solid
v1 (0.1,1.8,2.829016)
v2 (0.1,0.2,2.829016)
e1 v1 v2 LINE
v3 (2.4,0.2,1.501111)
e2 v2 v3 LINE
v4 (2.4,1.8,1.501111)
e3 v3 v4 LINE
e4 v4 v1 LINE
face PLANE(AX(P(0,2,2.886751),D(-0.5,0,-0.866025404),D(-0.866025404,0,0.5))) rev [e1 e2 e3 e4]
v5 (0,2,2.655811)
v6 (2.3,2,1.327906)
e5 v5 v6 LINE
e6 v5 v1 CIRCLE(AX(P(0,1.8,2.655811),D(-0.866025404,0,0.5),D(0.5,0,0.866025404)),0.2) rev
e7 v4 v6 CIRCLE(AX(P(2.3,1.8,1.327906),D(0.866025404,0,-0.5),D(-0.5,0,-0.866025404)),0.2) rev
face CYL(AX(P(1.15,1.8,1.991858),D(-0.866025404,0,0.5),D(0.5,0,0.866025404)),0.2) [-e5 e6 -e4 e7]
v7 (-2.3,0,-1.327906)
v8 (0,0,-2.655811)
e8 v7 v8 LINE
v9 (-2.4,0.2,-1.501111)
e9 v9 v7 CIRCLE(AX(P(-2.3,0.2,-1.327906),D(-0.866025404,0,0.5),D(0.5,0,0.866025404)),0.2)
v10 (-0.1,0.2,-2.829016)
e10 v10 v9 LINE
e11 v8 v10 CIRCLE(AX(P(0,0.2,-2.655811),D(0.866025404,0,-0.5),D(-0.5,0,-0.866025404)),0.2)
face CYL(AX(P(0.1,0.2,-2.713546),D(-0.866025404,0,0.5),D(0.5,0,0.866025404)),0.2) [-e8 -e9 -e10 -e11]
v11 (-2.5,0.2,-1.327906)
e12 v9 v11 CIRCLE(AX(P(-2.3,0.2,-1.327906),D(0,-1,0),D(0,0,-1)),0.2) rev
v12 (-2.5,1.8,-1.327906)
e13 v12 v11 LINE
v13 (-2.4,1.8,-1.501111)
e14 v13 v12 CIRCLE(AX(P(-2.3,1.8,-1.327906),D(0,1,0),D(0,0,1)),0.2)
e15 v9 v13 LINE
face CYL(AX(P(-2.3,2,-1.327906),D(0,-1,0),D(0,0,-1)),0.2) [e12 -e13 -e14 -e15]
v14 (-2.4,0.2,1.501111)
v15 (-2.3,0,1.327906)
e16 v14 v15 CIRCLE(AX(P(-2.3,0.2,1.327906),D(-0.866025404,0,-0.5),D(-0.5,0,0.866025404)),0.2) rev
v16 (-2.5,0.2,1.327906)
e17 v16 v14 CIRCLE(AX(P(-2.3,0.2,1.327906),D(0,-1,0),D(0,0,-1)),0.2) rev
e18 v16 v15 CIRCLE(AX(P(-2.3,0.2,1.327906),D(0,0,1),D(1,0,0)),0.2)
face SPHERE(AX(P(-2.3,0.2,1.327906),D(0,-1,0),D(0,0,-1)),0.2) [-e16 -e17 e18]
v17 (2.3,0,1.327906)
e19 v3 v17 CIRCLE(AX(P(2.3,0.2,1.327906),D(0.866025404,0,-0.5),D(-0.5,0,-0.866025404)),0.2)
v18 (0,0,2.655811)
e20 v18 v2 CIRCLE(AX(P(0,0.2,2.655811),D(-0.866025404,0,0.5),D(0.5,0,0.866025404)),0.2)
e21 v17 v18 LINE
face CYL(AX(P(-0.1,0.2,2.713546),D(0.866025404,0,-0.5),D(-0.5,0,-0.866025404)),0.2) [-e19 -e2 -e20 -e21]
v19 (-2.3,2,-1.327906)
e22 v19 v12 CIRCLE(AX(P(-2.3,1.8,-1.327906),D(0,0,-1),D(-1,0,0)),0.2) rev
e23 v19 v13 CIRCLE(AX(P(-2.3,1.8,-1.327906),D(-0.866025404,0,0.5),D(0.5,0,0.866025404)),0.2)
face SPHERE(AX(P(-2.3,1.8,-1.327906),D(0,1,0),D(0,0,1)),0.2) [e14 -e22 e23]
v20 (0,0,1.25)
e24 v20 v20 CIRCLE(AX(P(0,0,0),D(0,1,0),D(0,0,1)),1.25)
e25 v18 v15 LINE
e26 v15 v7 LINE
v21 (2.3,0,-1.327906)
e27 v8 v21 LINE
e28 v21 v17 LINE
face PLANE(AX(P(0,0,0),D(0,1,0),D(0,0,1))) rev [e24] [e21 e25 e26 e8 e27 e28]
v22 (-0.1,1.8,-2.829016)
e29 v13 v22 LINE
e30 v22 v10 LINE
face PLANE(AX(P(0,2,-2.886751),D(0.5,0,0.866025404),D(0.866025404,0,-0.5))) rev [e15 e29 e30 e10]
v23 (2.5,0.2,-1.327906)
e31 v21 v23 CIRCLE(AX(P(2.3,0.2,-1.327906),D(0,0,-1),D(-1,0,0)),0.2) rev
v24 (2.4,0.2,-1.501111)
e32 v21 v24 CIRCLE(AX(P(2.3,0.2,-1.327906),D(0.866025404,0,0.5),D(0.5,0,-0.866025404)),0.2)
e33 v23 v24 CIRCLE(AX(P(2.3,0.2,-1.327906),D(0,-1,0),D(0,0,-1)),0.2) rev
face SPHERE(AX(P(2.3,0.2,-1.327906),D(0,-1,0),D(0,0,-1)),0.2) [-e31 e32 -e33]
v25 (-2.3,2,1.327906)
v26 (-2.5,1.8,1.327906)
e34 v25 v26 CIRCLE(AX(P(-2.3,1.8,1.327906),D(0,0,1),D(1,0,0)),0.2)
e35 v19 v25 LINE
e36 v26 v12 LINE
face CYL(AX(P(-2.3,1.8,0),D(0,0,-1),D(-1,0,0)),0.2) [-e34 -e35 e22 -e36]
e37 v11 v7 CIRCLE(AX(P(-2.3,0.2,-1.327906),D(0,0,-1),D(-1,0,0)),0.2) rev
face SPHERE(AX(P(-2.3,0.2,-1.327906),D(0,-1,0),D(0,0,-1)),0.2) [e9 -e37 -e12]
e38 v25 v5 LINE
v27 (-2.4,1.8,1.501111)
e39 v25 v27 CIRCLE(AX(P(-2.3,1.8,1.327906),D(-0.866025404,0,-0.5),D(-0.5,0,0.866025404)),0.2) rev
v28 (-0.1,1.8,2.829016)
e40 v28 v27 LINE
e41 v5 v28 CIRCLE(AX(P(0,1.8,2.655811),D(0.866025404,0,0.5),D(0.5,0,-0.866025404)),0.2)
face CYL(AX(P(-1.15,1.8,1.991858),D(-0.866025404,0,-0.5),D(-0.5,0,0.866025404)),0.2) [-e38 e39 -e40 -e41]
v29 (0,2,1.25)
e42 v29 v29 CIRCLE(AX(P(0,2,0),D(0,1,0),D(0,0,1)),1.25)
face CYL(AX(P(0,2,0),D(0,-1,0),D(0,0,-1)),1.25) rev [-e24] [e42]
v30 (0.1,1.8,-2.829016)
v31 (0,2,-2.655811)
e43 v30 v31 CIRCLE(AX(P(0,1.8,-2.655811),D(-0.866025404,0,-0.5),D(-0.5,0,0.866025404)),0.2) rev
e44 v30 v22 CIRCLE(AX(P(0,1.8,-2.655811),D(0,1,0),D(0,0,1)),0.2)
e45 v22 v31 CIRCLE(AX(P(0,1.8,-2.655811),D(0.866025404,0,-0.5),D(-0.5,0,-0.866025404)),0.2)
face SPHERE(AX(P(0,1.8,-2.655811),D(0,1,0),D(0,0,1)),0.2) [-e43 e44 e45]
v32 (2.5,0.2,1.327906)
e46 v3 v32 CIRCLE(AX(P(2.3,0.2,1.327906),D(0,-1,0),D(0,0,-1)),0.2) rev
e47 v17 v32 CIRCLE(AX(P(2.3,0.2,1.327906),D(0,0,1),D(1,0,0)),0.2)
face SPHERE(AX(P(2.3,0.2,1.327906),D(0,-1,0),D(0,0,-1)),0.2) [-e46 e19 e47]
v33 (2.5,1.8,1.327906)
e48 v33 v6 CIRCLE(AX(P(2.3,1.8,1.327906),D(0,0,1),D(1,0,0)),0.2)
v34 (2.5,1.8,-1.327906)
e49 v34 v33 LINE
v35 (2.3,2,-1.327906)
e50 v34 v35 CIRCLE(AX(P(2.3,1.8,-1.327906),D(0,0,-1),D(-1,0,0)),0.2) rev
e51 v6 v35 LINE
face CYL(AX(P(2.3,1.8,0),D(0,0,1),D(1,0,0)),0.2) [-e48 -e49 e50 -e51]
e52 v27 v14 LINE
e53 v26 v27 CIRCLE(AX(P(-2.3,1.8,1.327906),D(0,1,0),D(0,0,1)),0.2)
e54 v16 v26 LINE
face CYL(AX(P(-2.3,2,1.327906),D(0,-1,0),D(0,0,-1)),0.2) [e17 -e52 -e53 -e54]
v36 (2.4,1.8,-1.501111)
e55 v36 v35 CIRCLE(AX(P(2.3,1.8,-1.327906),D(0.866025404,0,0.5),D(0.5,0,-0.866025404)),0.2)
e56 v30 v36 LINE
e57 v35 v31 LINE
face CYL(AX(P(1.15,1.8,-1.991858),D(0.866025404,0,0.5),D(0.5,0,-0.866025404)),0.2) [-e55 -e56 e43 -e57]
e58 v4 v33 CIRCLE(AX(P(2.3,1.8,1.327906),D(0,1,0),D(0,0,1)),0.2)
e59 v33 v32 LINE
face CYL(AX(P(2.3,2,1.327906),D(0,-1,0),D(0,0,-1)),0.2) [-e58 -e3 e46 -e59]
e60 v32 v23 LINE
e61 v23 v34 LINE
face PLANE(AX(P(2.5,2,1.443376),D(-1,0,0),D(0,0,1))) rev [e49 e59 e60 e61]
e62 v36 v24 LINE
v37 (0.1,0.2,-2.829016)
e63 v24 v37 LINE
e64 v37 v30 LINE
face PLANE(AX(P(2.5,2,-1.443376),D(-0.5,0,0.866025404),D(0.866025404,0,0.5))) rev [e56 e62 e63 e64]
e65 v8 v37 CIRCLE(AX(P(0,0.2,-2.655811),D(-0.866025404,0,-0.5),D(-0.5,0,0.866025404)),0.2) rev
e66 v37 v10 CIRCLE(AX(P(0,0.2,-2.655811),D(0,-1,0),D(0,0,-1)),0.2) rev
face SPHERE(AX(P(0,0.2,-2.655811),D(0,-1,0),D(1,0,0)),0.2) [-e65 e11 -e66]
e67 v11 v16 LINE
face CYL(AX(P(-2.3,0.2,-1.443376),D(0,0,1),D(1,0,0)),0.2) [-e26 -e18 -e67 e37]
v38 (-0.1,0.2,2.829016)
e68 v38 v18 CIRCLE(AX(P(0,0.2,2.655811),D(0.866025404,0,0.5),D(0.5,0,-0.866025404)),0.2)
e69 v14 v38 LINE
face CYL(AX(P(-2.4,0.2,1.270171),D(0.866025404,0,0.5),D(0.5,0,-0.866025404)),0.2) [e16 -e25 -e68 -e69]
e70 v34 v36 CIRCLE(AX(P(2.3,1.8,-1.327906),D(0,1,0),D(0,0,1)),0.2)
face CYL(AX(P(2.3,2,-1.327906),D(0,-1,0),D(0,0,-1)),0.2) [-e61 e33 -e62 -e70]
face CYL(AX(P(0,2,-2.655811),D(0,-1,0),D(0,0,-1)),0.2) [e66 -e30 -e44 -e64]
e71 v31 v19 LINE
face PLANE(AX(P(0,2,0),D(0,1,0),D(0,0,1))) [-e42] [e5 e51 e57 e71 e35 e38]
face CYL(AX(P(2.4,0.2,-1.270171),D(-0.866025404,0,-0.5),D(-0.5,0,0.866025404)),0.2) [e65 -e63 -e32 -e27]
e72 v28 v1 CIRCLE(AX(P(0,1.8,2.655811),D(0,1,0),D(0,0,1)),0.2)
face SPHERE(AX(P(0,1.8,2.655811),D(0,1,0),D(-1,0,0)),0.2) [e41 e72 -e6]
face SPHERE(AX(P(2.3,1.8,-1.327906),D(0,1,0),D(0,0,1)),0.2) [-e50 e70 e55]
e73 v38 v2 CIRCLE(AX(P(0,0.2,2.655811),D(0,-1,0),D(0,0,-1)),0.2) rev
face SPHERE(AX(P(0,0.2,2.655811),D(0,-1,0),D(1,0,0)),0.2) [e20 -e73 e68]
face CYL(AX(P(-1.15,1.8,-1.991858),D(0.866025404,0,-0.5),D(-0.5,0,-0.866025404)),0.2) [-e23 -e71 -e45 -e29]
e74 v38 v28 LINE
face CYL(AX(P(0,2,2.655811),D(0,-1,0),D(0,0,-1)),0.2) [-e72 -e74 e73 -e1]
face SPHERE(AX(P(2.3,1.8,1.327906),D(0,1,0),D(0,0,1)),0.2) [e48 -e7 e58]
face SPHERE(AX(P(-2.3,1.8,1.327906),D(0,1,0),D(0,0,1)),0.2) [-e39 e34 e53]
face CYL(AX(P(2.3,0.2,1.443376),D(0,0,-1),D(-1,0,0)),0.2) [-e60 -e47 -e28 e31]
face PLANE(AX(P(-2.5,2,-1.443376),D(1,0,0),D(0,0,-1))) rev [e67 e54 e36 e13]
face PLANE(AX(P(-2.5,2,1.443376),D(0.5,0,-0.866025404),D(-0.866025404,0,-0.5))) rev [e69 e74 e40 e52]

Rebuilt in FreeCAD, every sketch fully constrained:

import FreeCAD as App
import Part
import Sketcher
Q = App.Units.Quantity


def edges_at(feature, points):
    """Names of the edges that pass closest to the given points."""
    edges = feature.Shape.Edges
    near = lambda p: min(range(len(edges)), key=lambda i: edges[i].distToShape(Part.Vertex(*p))[0])
    return sorted({f"Edge{near(p) + 1}" for p in points})

doc = App.newDocument("Part")
body = doc.addObject("PartDesign::Body", "Body")

# Sketch on XZ plane
sketch1 = body.newObject("Sketcher::SketchObject", "Sketch")
sketch1.AttachmentSupport = (doc.getObject("XZ_Plane"), [""])
sketch1.MapMode = "FlatFace"
sketch1.addGeometry([
    Part.LineSegment(App.Vector(0, 2.9, 0), App.Vector(2.5, 1.4, 0)),  # 0
    Part.LineSegment(App.Vector(2.5, 1.4, 0), App.Vector(2.5, -1.4, 0)),  # 1
    Part.LineSegment(App.Vector(2.5, -1.4, 0), App.Vector(0, -2.9, 0)),  # 2
    Part.LineSegment(App.Vector(0, -2.9, 0), App.Vector(-2.5, -1.4, 0)),  # 3
    Part.LineSegment(App.Vector(-2.5, -1.4, 0), App.Vector(-2.5, 1.4, 0)),  # 4
    Part.LineSegment(App.Vector(-2.5, 1.4, 0), App.Vector(0, 2.9, 0)),  # 5
    Part.Circle(App.Vector(0, 0, 0), App.Vector(0, 0, 1), 1.2),  # 6
], False)
sketch1.addConstraint([
    Sketcher.Constraint("Coincident", 0, 2, 1, 1),
    Sketcher.Constraint("Coincident", 1, 2, 2, 1),
    Sketcher.Constraint("Coincident", 2, 2, 3, 1),
    Sketcher.Constraint("Coincident", 3, 2, 4, 1),
    Sketcher.Constraint("Coincident", 4, 2, 5, 1),
    Sketcher.Constraint("Coincident", 5, 2, 0, 1),
    Sketcher.Constraint("Vertical", 1),
    Sketcher.Constraint("Vertical", 4),
    Sketcher.Constraint("Coincident", 6, 3, -1, 1),
    Sketcher.Constraint("Symmetric", 0, 2, 3, 2, -1, 1),
    Sketcher.Constraint("Symmetric", 2, 2, 5, 2, -1, 1),
    Sketcher.Constraint("PointOnObject", 2, 2, -2),
    Sketcher.Constraint("Parallel", 2, 5),
    Sketcher.Constraint("Horizontal", 1, 2, 3, 2),
    Sketcher.Constraint("Diameter", 6, 2.5),
    Sketcher.Constraint("Angle", 0, Q("-30 deg")),
    Sketcher.Constraint("DistanceX", 3, 2, 1, 2, 5.0),
    Sketcher.Constraint("DistanceY", 1, 2, 1, 1, 2.886751),
])
pad1 = body.newObject("PartDesign::Pad", "Pad")
pad1.Profile = sketch1
pad1.Length = 2
pad1.Reversed = True
doc.recompute()

fillet = body.newObject("PartDesign::Fillet", "Fillet")
fillet.Base = (pad1, edges_at(pad1, [
    (-2.5, 1, 1.443),
    (-2.5, 1, -1.443),
    (0, 1, -2.887),
    (2.5, 1, -1.443),
    (2.5, 1, 1.443),
    (0, 1, 2.887),
    (2.5, 2, 0),
    (1.25, 2, -2.165),
    (-1.25, 2, -2.165),
    (-2.5, 2, 0),
    (-1.25, 2, 2.165),
    (-2.5, 0, 0),
    (-1.25, 0, -2.165),
    (1.25, 0, -2.165),
    (2.5, 0, 0),
    (1.25, 0, 2.165),
    (-1.25, 0, 2.165),
    (1.25, 2, 2.165),
]))
fillet.Radius = 0.2

doc.recompute()
